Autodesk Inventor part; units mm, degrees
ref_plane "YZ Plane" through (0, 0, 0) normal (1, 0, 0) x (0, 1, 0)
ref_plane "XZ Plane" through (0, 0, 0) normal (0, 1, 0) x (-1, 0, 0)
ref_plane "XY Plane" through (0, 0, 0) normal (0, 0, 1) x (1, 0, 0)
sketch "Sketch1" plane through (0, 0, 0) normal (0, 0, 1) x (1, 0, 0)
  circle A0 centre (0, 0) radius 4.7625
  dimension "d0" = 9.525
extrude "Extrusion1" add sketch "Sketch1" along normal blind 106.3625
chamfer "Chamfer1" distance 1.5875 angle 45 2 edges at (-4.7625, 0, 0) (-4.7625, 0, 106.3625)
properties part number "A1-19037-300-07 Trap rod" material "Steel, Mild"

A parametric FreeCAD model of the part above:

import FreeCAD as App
import Part
import Sketcher

V = App.Vector
Q = App.Units.Quantity


def edges_at(feature, points):
    """Names of the edges that pass closest to the given points."""
    edges = feature.Shape.Edges
    near = lambda p: min(range(len(edges)), key=lambda i: edges[i].distToShape(Part.Vertex(*p))[0])
    return sorted({f"Edge{near(p) + 1}" for p in points})

doc = App.newDocument("Part")
body = doc.addObject("PartDesign::Body", "Body")

sketch1 = body.newObject("Sketcher::SketchObject", "Sketch")
sketch1.AttachmentSupport = (doc.getObject("XY_Plane"), [""])
sketch1.MapMode = "FlatFace"
sketch1.addGeometry(Part.Circle(V(0, 0, 0), V(0, 0, 1), 4.7625), False)
sketch1.addConstraint(Sketcher.Constraint("Coincident", 0, 3, -1, 1))
sketch1.addConstraint(Sketcher.Constraint("Diameter", 0, Q("0.375 in")))
pad1 = body.newObject("PartDesign::Pad", "Pad")
pad1.Profile = sketch1
pad1.Length = Q("4.1875 in")
doc.recompute()

chamfer = body.newObject("PartDesign::Chamfer", "Chamfer")
chamfer.Base = (pad1, edges_at(pad1, [(-4.763, 0, 0), (-4.763, 0, 106.362)]))
chamfer.Size = Q("0.0625 in")

doc.recompute()
